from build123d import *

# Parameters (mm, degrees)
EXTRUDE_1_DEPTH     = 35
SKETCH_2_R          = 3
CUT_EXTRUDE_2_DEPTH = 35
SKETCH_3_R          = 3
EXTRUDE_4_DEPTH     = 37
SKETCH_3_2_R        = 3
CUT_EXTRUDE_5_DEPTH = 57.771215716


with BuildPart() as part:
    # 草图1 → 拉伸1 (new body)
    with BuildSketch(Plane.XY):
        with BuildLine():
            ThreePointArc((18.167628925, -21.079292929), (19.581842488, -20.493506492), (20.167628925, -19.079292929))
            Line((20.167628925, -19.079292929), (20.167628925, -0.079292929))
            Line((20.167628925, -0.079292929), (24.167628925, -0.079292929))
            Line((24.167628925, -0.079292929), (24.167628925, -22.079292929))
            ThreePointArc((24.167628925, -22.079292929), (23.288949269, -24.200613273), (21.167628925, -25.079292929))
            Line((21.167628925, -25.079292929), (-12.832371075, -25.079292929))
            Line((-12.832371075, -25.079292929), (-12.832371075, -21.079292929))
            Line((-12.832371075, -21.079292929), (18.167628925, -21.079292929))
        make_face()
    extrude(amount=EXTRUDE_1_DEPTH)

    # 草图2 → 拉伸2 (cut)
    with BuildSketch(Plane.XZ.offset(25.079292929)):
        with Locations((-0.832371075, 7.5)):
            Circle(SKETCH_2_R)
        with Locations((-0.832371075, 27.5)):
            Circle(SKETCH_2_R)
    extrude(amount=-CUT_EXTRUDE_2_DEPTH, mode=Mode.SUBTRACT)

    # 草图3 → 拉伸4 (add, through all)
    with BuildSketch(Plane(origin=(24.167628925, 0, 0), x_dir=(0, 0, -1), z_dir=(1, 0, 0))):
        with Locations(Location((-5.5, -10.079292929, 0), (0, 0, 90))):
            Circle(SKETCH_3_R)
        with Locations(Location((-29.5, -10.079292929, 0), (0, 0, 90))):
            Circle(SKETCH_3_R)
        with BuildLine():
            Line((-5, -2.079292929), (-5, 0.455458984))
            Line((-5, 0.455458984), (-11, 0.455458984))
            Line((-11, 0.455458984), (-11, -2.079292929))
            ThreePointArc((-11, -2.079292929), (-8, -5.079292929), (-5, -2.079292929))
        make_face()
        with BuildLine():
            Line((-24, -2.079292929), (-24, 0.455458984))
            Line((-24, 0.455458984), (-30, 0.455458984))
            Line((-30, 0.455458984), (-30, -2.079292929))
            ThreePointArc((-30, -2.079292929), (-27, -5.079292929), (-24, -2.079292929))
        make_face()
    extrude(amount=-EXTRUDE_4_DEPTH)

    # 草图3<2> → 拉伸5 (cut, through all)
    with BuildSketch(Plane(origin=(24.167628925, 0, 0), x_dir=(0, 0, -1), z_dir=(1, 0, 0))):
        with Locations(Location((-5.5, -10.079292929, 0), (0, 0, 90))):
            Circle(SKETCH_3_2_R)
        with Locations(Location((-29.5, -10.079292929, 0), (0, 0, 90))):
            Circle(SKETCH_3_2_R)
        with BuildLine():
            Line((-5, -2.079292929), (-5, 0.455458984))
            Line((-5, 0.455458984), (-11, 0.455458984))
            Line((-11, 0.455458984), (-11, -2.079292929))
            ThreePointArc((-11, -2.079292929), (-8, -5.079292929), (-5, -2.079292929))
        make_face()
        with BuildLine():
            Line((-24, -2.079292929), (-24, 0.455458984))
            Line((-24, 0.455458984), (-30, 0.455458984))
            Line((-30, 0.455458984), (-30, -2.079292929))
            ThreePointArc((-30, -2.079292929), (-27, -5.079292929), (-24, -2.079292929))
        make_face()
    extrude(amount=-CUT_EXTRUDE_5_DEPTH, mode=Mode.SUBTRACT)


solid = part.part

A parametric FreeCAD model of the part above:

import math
import FreeCAD as App
import Part
import Sketcher
from FreeCAD import Vector

doc = App.newDocument("Part")
body = doc.addObject("PartDesign::Body", "Body")

sketch1 = body.newObject("Sketcher::SketchObject", "Sketch")
sketch1.AttachmentSupport = (doc.getObject("XY_Plane"), [""])
sketch1.MapMode = "FlatFace"
sketch1.addGeometry([
    Part.ArcOfCircle(Part.Circle(Vector(18.2, -19.1, 0), Vector(0, 0, 1), 2), math.radians(-90), math.radians(0)),
    Part.LineSegment(Vector(18.2, -21.1, 0), Vector(-12.8, -21.1, 0)),
    Part.LineSegment(Vector(-12.8, -21.1, 0), Vector(-12.8, -25.1, 0)),
    Part.LineSegment(Vector(-12.8, -25.1, 0), Vector(21.2, -25.1, 0)),
    Part.ArcOfCircle(Part.Circle(Vector(21.2, -22.1, 0), Vector(0, 0, 1), 3), math.radians(-90), math.radians(0)),
    Part.LineSegment(Vector(24.2, -22.1, 0), Vector(24.2, -0.1, 0)),
    Part.LineSegment(Vector(24.2, -0.1, 0), Vector(20.2, -0.1, 0)),
    Part.LineSegment(Vector(20.2, -0.1, 0), Vector(20.2, -19.1, 0)),
], False)
sketch1.addConstraint([
    Sketcher.Constraint("Tangent", 0, 1, 1, 1),
    Sketcher.Constraint("Coincident", 1, 2, 2, 1),
    Sketcher.Constraint("Coincident", 2, 2, 3, 1),
    Sketcher.Constraint("Tangent", 3, 2, 4, 1),
    Sketcher.Constraint("Tangent", 4, 2, 5, 1),
    Sketcher.Constraint("Coincident", 5, 2, 6, 1),
    Sketcher.Constraint("Coincident", 6, 2, 7, 1),
    Sketcher.Constraint("Tangent", 7, 2, 0, 2),
    Sketcher.Constraint("Horizontal", 1),
    Sketcher.Constraint("Vertical", 2),
    Sketcher.Constraint("Horizontal", 3),
    Sketcher.Constraint("Vertical", 5),
    Sketcher.Constraint("Horizontal", 6),
    Sketcher.Constraint("Vertical", 7),
    Sketcher.Constraint("Equal", 6, 2),
    Sketcher.Constraint("Radius", 0, 2.0),
    Sketcher.Constraint("Radius", 4, 3.0),
    Sketcher.Constraint("DistanceX", 1, 2, 1, 1, 31.0),
    Sketcher.Constraint("DistanceX", 3, 1, 3, 2, 34.0),
    Sketcher.Constraint("DistanceY", 5, 1, 5, 2, 22.0),
    Sketcher.Constraint("DistanceX", -1, 1, 0, 3, 18.167629),
    Sketcher.Constraint("DistanceY", 0, 3, -1, 1, 19.079293),
])
pad1 = body.newObject("PartDesign::Pad", "Pad")
pad1.Profile = sketch1
pad1.Length = 35

sketch2 = body.newObject("Sketcher::SketchObject", "Sketch001")
sketch2.AttachmentSupport = (doc.getObject("XZ_Plane"), [""])
sketch2.MapMode = "FlatFace"
sketch2.AttachmentOffset = App.Placement(Vector(0, 0, 25.079293), App.Rotation())
sketch2.addGeometry([
    Part.Circle(Vector(-0.8, 7.5, 0), Vector(0, 0, 1), 3),
    Part.Circle(Vector(-0.8, 27.5, 0), Vector(0, 0, 1), 3),
], False)
sketch2.addConstraint([
    Sketcher.Constraint("Equal", 0, 1),
    Sketcher.Constraint("Vertical", 0, 3, 1, 3),
    Sketcher.Constraint("Diameter", 0, 6.0),
    Sketcher.Constraint("DistanceY", 0, 3, 1, 3, 20.0),
    Sketcher.Constraint("DistanceY", -1, 1, 0, 3, 7.5),
    Sketcher.Constraint("DistanceX", 0, 3, -1, 1, 0.832371),
])
pocket1 = body.newObject("PartDesign::Pocket", "Pocket")
pocket1.Profile = sketch2
pocket1.Length = 35

sketch3 = body.newObject("Sketcher::SketchObject", "Sketch002")
sketch3.AttachmentSupport = (doc.getObject("YZ_Plane"), [""])
sketch3.MapMode = "FlatFace"
sketch3.AttachmentOffset = App.Placement(Vector(0, 0, 24.167629), App.Rotation())
sketch3.addGeometry([
    Part.Circle(Vector(-10.1, 5.5, 0), Vector(0, 0, 1), 3),
    Part.Circle(Vector(-10.1, 29.5, 0), Vector(0, 0, 1), 3),
    Part.LineSegment(Vector(-2.1, 5, 0), Vector(0.5, 5, 0)),
    Part.LineSegment(Vector(0.5, 5, 0), Vector(0.5, 11, 0)),
    Part.LineSegment(Vector(0.5, 11, 0), Vector(-2.1, 11, 0)),
    Part.ArcOfCircle(Part.Circle(Vector(-2.1, 8, 0), Vector(0, 0, 1), 3), math.radians(90), math.radians(270)),
    Part.LineSegment(Vector(-2.1, 24, 0), Vector(0.5, 24, 0)),
    Part.LineSegment(Vector(0.5, 24, 0), Vector(0.5, 30, 0)),
    Part.LineSegment(Vector(0.5, 30, 0), Vector(-2.1, 30, 0)),
    Part.ArcOfCircle(Part.Circle(Vector(-2.1, 27, 0), Vector(0, 0, 1), 3), math.radians(90), math.radians(270)),
], False)
sketch3.addConstraint([
    Sketcher.Constraint("Coincident", 2, 2, 3, 1),
    Sketcher.Constraint("Coincident", 3, 2, 4, 1),
    Sketcher.Constraint("Tangent", 4, 2, 5, 1),
    Sketcher.Constraint("Tangent", 5, 2, 2, 1),
    Sketcher.Constraint("Coincident", 6, 2, 7, 1),
    Sketcher.Constraint("Coincident", 7, 2, 8, 1),
    Sketcher.Constraint("Tangent", 8, 2, 9, 1),
    Sketcher.Constraint("Tangent", 9, 2, 6, 1),
    Sketcher.Constraint("Horizontal", 2),
    Sketcher.Constraint("Vertical", 3),
    Sketcher.Constraint("Horizontal", 4),
    Sketcher.Constraint("Horizontal", 6),
    Sketcher.Constraint("Vertical", 7),
    Sketcher.Constraint("Horizontal", 8),
    Sketcher.Constraint("Equal", 0, 1),
    Sketcher.Constraint("Equal", 1, 5),
    Sketcher.Constraint("Equal", 5, 9),
    Sketcher.Constraint("Vertical", 0, 3, 1, 3),
    Sketcher.Constraint("Vertical", 5, 3, 9, 3),
    Sketcher.Constraint("Vertical", 3, 2, 6, 2),
    Sketcher.Constraint("Diameter", 0, 6.0),
    Sketcher.Constraint("DistanceY", -1, 1, 5, 3, 8.0),
    Sketcher.Constraint("DistanceY", -1, 1, 9, 3, 27.0),
    Sketcher.Constraint("DistanceY", 0, 3, 1, 3, 24.0),
    Sketcher.Constraint("DistanceX", 0, 3, 5, 3, 8.0),
    Sketcher.Constraint("DistanceY", -1, 1, 0, 3, 5.5),
    Sketcher.Constraint("DistanceX", 2, 1, 2, 2, 2.534752),
    Sketcher.Constraint("DistanceX", -1, 1, 2, 2, 0.455459),
])
pad2 = body.newObject("PartDesign::Pad", "Pad001")
pad2.Profile = sketch3
pad2.Length = 37
pad2.Reversed = True

sketch4 = body.newObject("Sketcher::SketchObject", "Sketch003")
sketch4.AttachmentSupport = (doc.getObject("YZ_Plane"), [""])
sketch4.MapMode = "FlatFace"
sketch4.AttachmentOffset = App.Placement(Vector(0, 0, 24.167629), App.Rotation())
sketch4.addGeometry([
    Part.Circle(Vector(-10.1, 5.5, 0), Vector(0, 0, 1), 3),
    Part.Circle(Vector(-10.1, 29.5, 0), Vector(0, 0, 1), 3),
    Part.LineSegment(Vector(-2.1, 5, 0), Vector(0.5, 5, 0)),
    Part.LineSegment(Vector(0.5, 5, 0), Vector(0.5, 11, 0)),
    Part.LineSegment(Vector(0.5, 11, 0), Vector(-2.1, 11, 0)),
    Part.ArcOfCircle(Part.Circle(Vector(-2.1, 8, 0), Vector(0, 0, 1), 3), math.radians(90), math.radians(270)),
    Part.LineSegment(Vector(-2.1, 24, 0), Vector(0.5, 24, 0)),
    Part.LineSegment(Vector(0.5, 24, 0), Vector(0.5, 30, 0)),
    Part.LineSegment(Vector(0.5, 30, 0), Vector(-2.1, 30, 0)),
    Part.ArcOfCircle(Part.Circle(Vector(-2.1, 27, 0), Vector(0, 0, 1), 3), math.radians(90), math.radians(270)),
], False)
sketch4.addConstraint([
    Sketcher.Constraint("Coincident", 2, 2, 3, 1),
    Sketcher.Constraint("Coincident", 3, 2, 4, 1),
    Sketcher.Constraint("Tangent", 4, 2, 5, 1),
    Sketcher.Constraint("Tangent", 5, 2, 2, 1),
    Sketcher.Constraint("Coincident", 6, 2, 7, 1),
    Sketcher.Constraint("Coincident", 7, 2, 8, 1),
    Sketcher.Constraint("Tangent", 8, 2, 9, 1),
    Sketcher.Constraint("Tangent", 9, 2, 6, 1),
    Sketcher.Constraint("Horizontal", 2),
    Sketcher.Constraint("Vertical", 3),
    Sketcher.Constraint("Horizontal", 4),
    Sketcher.Constraint("Horizontal", 6),
    Sketcher.Constraint("Vertical", 7),
    Sketcher.Constraint("Horizontal", 8),
    Sketcher.Constraint("Equal", 0, 1),
    Sketcher.Constraint("Equal", 1, 5),
    Sketcher.Constraint("Equal", 5, 9),
    Sketcher.Constraint("Vertical", 0, 3, 1, 3),
    Sketcher.Constraint("Vertical", 5, 3, 9, 3),
    Sketcher.Constraint("Vertical", 3, 2, 6, 2),
    Sketcher.Constraint("Diameter", 0, 6.0),
    Sketcher.Constraint("DistanceY", -1, 1, 5, 3, 8.0),
    Sketcher.Constraint("DistanceY", -1, 1, 9, 3, 27.0),
    Sketcher.Constraint("DistanceY", 0, 3, 1, 3, 24.0),
    Sketcher.Constraint("DistanceX", 0, 3, 5, 3, 8.0),
    Sketcher.Constraint("DistanceY", -1, 1, 0, 3, 5.5),
    Sketcher.Constraint("DistanceX", 2, 1, 2, 2, 2.534752),
    Sketcher.Constraint("DistanceX", -1, 1, 2, 2, 0.455459),
])
pocket2 = body.newObject("PartDesign::Pocket", "Pocket001")
pocket2.Profile = sketch4
pocket2.Type = "ThroughAll"

doc.recompute()
